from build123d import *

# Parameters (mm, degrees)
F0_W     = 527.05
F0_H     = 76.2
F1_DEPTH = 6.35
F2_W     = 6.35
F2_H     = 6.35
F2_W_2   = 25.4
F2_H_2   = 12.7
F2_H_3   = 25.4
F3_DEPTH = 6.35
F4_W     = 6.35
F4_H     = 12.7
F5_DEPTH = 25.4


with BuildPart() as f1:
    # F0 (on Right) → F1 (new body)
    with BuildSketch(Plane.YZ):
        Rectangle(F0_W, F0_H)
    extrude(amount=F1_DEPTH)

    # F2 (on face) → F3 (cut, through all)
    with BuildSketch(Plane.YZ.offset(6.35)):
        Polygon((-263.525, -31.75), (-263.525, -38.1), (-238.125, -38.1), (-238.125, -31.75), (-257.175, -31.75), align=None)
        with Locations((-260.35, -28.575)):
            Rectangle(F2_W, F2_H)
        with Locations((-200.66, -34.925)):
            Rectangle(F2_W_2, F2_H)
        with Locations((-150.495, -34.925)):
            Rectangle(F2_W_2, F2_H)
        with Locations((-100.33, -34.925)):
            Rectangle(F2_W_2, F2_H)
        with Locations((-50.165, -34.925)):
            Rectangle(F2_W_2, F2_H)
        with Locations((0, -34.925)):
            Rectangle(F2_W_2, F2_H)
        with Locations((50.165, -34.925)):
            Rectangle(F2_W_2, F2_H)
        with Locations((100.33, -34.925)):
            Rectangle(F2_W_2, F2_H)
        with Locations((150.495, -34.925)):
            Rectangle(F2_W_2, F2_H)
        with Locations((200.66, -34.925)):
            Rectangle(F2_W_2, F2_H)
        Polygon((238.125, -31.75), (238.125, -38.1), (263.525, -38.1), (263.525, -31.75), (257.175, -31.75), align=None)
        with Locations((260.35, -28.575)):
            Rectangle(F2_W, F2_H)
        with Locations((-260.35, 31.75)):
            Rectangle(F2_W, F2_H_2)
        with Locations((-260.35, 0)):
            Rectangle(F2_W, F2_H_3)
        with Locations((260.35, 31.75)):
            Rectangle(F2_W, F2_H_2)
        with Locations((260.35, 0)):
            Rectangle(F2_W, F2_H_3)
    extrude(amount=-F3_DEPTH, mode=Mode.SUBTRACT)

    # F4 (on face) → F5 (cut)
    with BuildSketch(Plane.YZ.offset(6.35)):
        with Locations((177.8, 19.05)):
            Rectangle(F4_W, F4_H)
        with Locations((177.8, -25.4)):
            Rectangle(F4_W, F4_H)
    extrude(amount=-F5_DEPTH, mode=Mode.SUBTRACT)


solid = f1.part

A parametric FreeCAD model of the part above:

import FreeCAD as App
import Part
import Sketcher

V = App.Vector
Q = App.Units.Quantity

doc = App.newDocument("Part")
body = doc.addObject("PartDesign::Body", "Body")

sketch1 = body.newObject("Sketcher::SketchObject", "Sketch")
sketch1.AttachmentSupport = (doc.getObject("YZ_Plane"), [""])
sketch1.MapMode = "FlatFace"
sketch1.addGeometry(Part.LineSegment(V(-263.525, 38.1, 0), V(-263.525, -38.1, 0)), False)
sketch1.addGeometry(Part.LineSegment(V(-263.525, -38.1, 0), V(263.525, -38.1, 0)), False)
sketch1.addGeometry(Part.LineSegment(V(263.525, -38.1, 0), V(263.525, 38.1, 0)), False)
sketch1.addGeometry(Part.LineSegment(V(263.525, 38.1, 0), V(-263.525, 38.1, 0)), False)
sketch1.addConstraint(Sketcher.Constraint("Coincident", 0, 2, 1, 1))
sketch1.addConstraint(Sketcher.Constraint("Coincident", 1, 2, 2, 1))
sketch1.addConstraint(Sketcher.Constraint("Coincident", 2, 2, 3, 1))
sketch1.addConstraint(Sketcher.Constraint("Coincident", 3, 2, 0, 1))
sketch1.addConstraint(Sketcher.Constraint("Vertical", 0))
sketch1.addConstraint(Sketcher.Constraint("Horizontal", 1))
sketch1.addConstraint(Sketcher.Constraint("Vertical", 2))
sketch1.addConstraint(Sketcher.Constraint("Horizontal", 3))
sketch1.addConstraint(Sketcher.Constraint("Symmetric", 0, 2, 2, 2, -1, 1))
sketch1.addConstraint(Sketcher.Constraint("DistanceY", 0, 2, 0, 1, Q("3 in")))
sketch1.addConstraint(Sketcher.Constraint("DistanceX", 1, 1, 1, 2, Q("20.75 in")))
pad1 = body.newObject("PartDesign::Pad", "Pad")
pad1.Profile = sketch1
pad1.Length = Q("0.25 in")

sketch2 = body.newObject("Sketcher::SketchObject", "Sketch001")
sketch2.AttachmentSupport = (doc.getObject("YZ_Plane"), [""])
sketch2.MapMode = "FlatFace"
sketch2.AttachmentOffset = App.Placement(V(0, 0, 0.25 * 25.4), App.Rotation())
sketch2.addGeometry(Part.LineSegment(V(-263.525, -38.1, 0), V(-238.125, -38.1, 0)), False)
sketch2.addGeometry(Part.LineSegment(V(-238.125, -38.1, 0), V(-238.125, -31.75, 0)), False)
sketch2.addGeometry(Part.LineSegment(V(-238.125, -31.75, 0), V(-257.175, -31.75, 0)), False)
sketch2.addGeometry(Part.LineSegment(V(-257.175, -31.75, 0), V(-257.175, -25.4, 0)), False)
sketch2.addGeometry(Part.LineSegment(V(-257.175, -25.4, 0), V(-263.525, -25.4, 0)), False)
sketch2.addGeometry(Part.LineSegment(V(-263.525, -25.4, 0), V(-263.525, -38.1, 0)), False)
sketch2.addGeometry(Part.LineSegment(V(-213.36, -31.75, 0), V(-213.36, -38.1, 0)), False)
sketch2.addGeometry(Part.LineSegment(V(-213.36, -38.1, 0), V(-187.96, -38.1, 0)), False)
sketch2.addGeometry(Part.LineSegment(V(-187.96, -38.1, 0), V(-187.96, -31.75, 0)), False)
sketch2.addGeometry(Part.LineSegment(V(-187.96, -31.75, 0), V(-213.36, -31.75, 0)), False)
sketch2.addGeometry(Part.LineSegment(V(-163.195, -31.75, 0), V(-163.195, -38.1, 0)), False)
sketch2.addGeometry(Part.LineSegment(V(-163.195, -38.1, 0), V(-137.795, -38.1, 0)), False)
sketch2.addGeometry(Part.LineSegment(V(-137.795, -38.1, 0), V(-137.795, -31.75, 0)), False)
sketch2.addGeometry(Part.LineSegment(V(-137.795, -31.75, 0), V(-163.195, -31.75, 0)), False)
sketch2.addGeometry(Part.LineSegment(V(-113.03, -31.75, 0), V(-113.03, -38.1, 0)), False)
sketch2.addGeometry(Part.LineSegment(V(-113.03, -38.1, 0), V(-87.63, -38.1, 0)), False)
sketch2.addGeometry(Part.LineSegment(V(-87.63, -38.1, 0), V(-87.63, -31.75, 0)), False)
sketch2.addGeometry(Part.LineSegment(V(-87.63, -31.75, 0), V(-113.03, -31.75, 0)), False)
sketch2.addGeometry(Part.LineSegment(V(-62.865, -31.75, 0), V(-62.865, -38.1, 0)), False)
sketch2.addGeometry(Part.LineSegment(V(-62.865, -38.1, 0), V(-37.465, -38.1, 0)), False)
sketch2.addGeometry(Part.LineSegment(V(-37.465, -38.1, 0), V(-37.465, -31.75, 0)), False)
sketch2.addGeometry(Part.LineSegment(V(-37.465, -31.75, 0), V(-62.865, -31.75, 0)), False)
sketch2.addGeometry(Part.LineSegment(V(-12.7, -31.75, 0), V(-12.7, -38.1, 0)), False)
sketch2.addGeometry(Part.LineSegment(V(-12.7, -38.1, 0), V(12.7, -38.1, 0)), False)
sketch2.addGeometry(Part.LineSegment(V(12.7, -38.1, 0), V(12.7, -31.75, 0)), False)
sketch2.addGeometry(Part.LineSegment(V(12.7, -31.75, 0), V(-12.7, -31.75, 0)), False)
sketch2.addGeometry(Part.LineSegment(V(37.465, -31.75, 0), V(37.465, -38.1, 0)), False)
sketch2.addGeometry(Part.LineSegment(V(37.465, -38.1, 0), V(62.865, -38.1, 0)), False)
sketch2.addGeometry(Part.LineSegment(V(62.865, -38.1, 0), V(62.865, -31.75, 0)), False)
sketch2.addGeometry(Part.LineSegment(V(62.865, -31.75, 0), V(37.465, -31.75, 0)), False)
sketch2.addGeometry(Part.LineSegment(V(87.63, -31.75, 0), V(87.63, -38.1, 0)), False)
sketch2.addGeometry(Part.LineSegment(V(87.63, -38.1, 0), V(113.03, -38.1, 0)), False)
sketch2.addGeometry(Part.LineSegment(V(113.03, -38.1, 0), V(113.03, -31.75, 0)), False)
sketch2.addGeometry(Part.LineSegment(V(113.03, -31.75, 0), V(87.63, -31.75, 0)), False)
sketch2.addGeometry(Part.LineSegment(V(137.795, -31.75, 0), V(137.795, -38.1, 0)), False)
sketch2.addGeometry(Part.LineSegment(V(137.795, -38.1, 0), V(163.195, -38.1, 0)), False)
sketch2.addGeometry(Part.LineSegment(V(163.195, -38.1, 0), V(163.195, -31.75, 0)), False)
sketch2.addGeometry(Part.LineSegment(V(163.195, -31.75, 0), V(137.795, -31.75, 0)), False)
sketch2.addGeometry(Part.LineSegment(V(187.96, -31.75, 0), V(187.96, -38.1, 0)), False)
sketch2.addGeometry(Part.LineSegment(V(187.96, -38.1, 0), V(213.36, -38.1, 0)), False)
sketch2.addGeometry(Part.LineSegment(V(213.36, -38.1, 0), V(213.36, -31.75, 0)), False)
sketch2.addGeometry(Part.LineSegment(V(213.36, -31.75, 0), V(187.96, -31.75, 0)), False)
sketch2.addGeometry(Part.LineSegment(V(238.125, -31.75, 0), V(238.125, -38.1, 0)), False)
sketch2.addGeometry(Part.LineSegment(V(238.125, -38.1, 0), V(263.525, -38.1, 0)), False)
sketch2.addGeometry(Part.LineSegment(V(263.525, -38.1, 0), V(263.525, -25.4, 0)), False)
sketch2.addGeometry(Part.LineSegment(V(263.525, -25.4, 0), V(257.175, -25.4, 0)), False)
sketch2.addGeometry(Part.LineSegment(V(257.175, -25.4, 0), V(257.175, -31.75, 0)), False)
sketch2.addGeometry(Part.LineSegment(V(257.175, -31.75, 0), V(238.125, -31.75, 0)), False)
sketch2.addGeometry(Part.LineSegment(V(-263.525, 38.1, 0), V(-263.525, 25.4, 0)), False)
sketch2.addGeometry(Part.LineSegment(V(-263.525, 25.4, 0), V(-257.175, 25.4, 0)), False)
sketch2.addGeometry(Part.LineSegment(V(-257.175, 25.4, 0), V(-257.175, 38.1, 0)), False)
sketch2.addGeometry(Part.LineSegment(V(-257.175, 38.1, 0), V(-263.525, 38.1, 0)), False)
sketch2.addGeometry(Part.LineSegment(V(-263.525, 12.7, 0), V(-263.525, -12.7, 0)), False)
sketch2.addGeometry(Part.LineSegment(V(-263.525, -12.7, 0), V(-257.175, -12.7, 0)), False)
sketch2.addGeometry(Part.LineSegment(V(-257.175, -12.7, 0), V(-257.175, 12.7, 0)), False)
sketch2.addGeometry(Part.LineSegment(V(-257.175, 12.7, 0), V(-263.525, 12.7, 0)), False)
sketch2.addGeometry(Part.LineSegment(V(257.175, 38.1, 0), V(257.175, 25.4, 0)), False)
sketch2.addGeometry(Part.LineSegment(V(257.175, 25.4, 0), V(263.525, 25.4, 0)), False)
sketch2.addGeometry(Part.LineSegment(V(263.525, 25.4, 0), V(263.525, 38.1, 0)), False)
sketch2.addGeometry(Part.LineSegment(V(263.525, 38.1, 0), V(257.175, 38.1, 0)), False)
sketch2.addGeometry(Part.LineSegment(V(257.175, 12.7, 0), V(257.175, -12.7, 0)), False)
sketch2.addGeometry(Part.LineSegment(V(257.175, -12.7, 0), V(263.525, -12.7, 0)), False)
sketch2.addGeometry(Part.LineSegment(V(263.525, -12.7, 0), V(263.525, 12.7, 0)), False)
sketch2.addGeometry(Part.LineSegment(V(263.525, 12.7, 0), V(257.175, 12.7, 0)), False)
sketch2.addConstraint(Sketcher.Constraint("Coincident", 0, 2, 1, 1))
sketch2.addConstraint(Sketcher.Constraint("Coincident", 1, 2, 2, 1))
sketch2.addConstraint(Sketcher.Constraint("Coincident", 2, 2, 3, 1))
sketch2.addConstraint(Sketcher.Constraint("Coincident", 3, 2, 4, 1))
sketch2.addConstraint(Sketcher.Constraint("Coincident", 4, 2, 5, 1))
sketch2.addConstraint(Sketcher.Constraint("Coincident", 5, 2, 0, 1))
sketch2.addConstraint(Sketcher.Constraint("Coincident", 6, 2, 7, 1))
sketch2.addConstraint(Sketcher.Constraint("Coincident", 7, 2, 8, 1))
sketch2.addConstraint(Sketcher.Constraint("Coincident", 8, 2, 9, 1))
sketch2.addConstraint(Sketcher.Constraint("Coincident", 9, 2, 6, 1))
sketch2.addConstraint(Sketcher.Constraint("Coincident", 10, 2, 11, 1))
sketch2.addConstraint(Sketcher.Constraint("Coincident", 11, 2, 12, 1))
sketch2.addConstraint(Sketcher.Constraint("Coincident", 12, 2, 13, 1))
sketch2.addConstraint(Sketcher.Constraint("Coincident", 13, 2, 10, 1))
sketch2.addConstraint(Sketcher.Constraint("Coincident", 14, 2, 15, 1))
sketch2.addConstraint(Sketcher.Constraint("Coincident", 15, 2, 16, 1))
sketch2.addConstraint(Sketcher.Constraint("Coincident", 16, 2, 17, 1))
sketch2.addConstraint(Sketcher.Constraint("Coincident", 17, 2, 14, 1))
sketch2.addConstraint(Sketcher.Constraint("Coincident", 18, 2, 19, 1))
sketch2.addConstraint(Sketcher.Constraint("Coincident", 19, 2, 20, 1))
sketch2.addConstraint(Sketcher.Constraint("Coincident", 20, 2, 21, 1))
sketch2.addConstraint(Sketcher.Constraint("Coincident", 21, 2, 18, 1))
sketch2.addConstraint(Sketcher.Constraint("Coincident", 22, 2, 23, 1))
sketch2.addConstraint(Sketcher.Constraint("Coincident", 23, 2, 24, 1))
sketch2.addConstraint(Sketcher.Constraint("Coincident", 24, 2, 25, 1))
sketch2.addConstraint(Sketcher.Constraint("Coincident", 25, 2, 22, 1))
sketch2.addConstraint(Sketcher.Constraint("Coincident", 26, 2, 27, 1))
sketch2.addConstraint(Sketcher.Constraint("Coincident", 27, 2, 28, 1))
sketch2.addConstraint(Sketcher.Constraint("Coincident", 28, 2, 29, 1))
sketch2.addConstraint(Sketcher.Constraint("Coincident", 29, 2, 26, 1))
sketch2.addConstraint(Sketcher.Constraint("Coincident", 30, 2, 31, 1))
sketch2.addConstraint(Sketcher.Constraint("Coincident", 31, 2, 32, 1))
sketch2.addConstraint(Sketcher.Constraint("Coincident", 32, 2, 33, 1))
sketch2.addConstraint(Sketcher.Constraint("Coincident", 33, 2, 30, 1))
sketch2.addConstraint(Sketcher.Constraint("Coincident", 34, 2, 35, 1))
sketch2.addConstraint(Sketcher.Constraint("Coincident", 35, 2, 36, 1))
sketch2.addConstraint(Sketcher.Constraint("Coincident", 36, 2, 37, 1))
sketch2.addConstraint(Sketcher.Constraint("Coincident", 37, 2, 34, 1))
sketch2.addConstraint(Sketcher.Constraint("Coincident", 38, 2, 39, 1))
sketch2.addConstraint(Sketcher.Constraint("Coincident", 39, 2, 40, 1))
sketch2.addConstraint(Sketcher.Constraint("Coincident", 40, 2, 41, 1))
sketch2.addConstraint(Sketcher.Constraint("Coincident", 41, 2, 38, 1))
sketch2.addConstraint(Sketcher.Constraint("Coincident", 42, 2, 43, 1))
sketch2.addConstraint(Sketcher.Constraint("Coincident", 43, 2, 44, 1))
sketch2.addConstraint(Sketcher.Constraint("Coincident", 44, 2, 45, 1))
sketch2.addConstraint(Sketcher.Constraint("Coincident", 45, 2, 46, 1))
sketch2.addConstraint(Sketcher.Constraint("Coincident", 46, 2, 47, 1))
sketch2.addConstraint(Sketcher.Constraint("Coincident", 47, 2, 42, 1))
sketch2.addConstraint(Sketcher.Constraint("Coincident", 48, 2, 49, 1))
sketch2.addConstraint(Sketcher.Constraint("Coincident", 49, 2, 50, 1))
sketch2.addConstraint(Sketcher.Constraint("Coincident", 50, 2, 51, 1))
sketch2.addConstraint(Sketcher.Constraint("Coincident", 51, 2, 48, 1))
sketch2.addConstraint(Sketcher.Constraint("Coincident", 52, 2, 53, 1))
sketch2.addConstraint(Sketcher.Constraint("Coincident", 53, 2, 54, 1))
sketch2.addConstraint(Sketcher.Constraint("Coincident", 54, 2, 55, 1))
sketch2.addConstraint(Sketcher.Constraint("Coincident", 55, 2, 52, 1))
sketch2.addConstraint(Sketcher.Constraint("Coincident", 56, 2, 57, 1))
sketch2.addConstraint(Sketcher.Constraint("Coincident", 57, 2, 58, 1))
sketch2.addConstraint(Sketcher.Constraint("Coincident", 58, 2, 59, 1))
sketch2.addConstraint(Sketcher.Constraint("Coincident", 59, 2, 56, 1))
sketch2.addConstraint(Sketcher.Constraint("Coincident", 60, 2, 61, 1))
sketch2.addConstraint(Sketcher.Constraint("Coincident", 61, 2, 62, 1))
sketch2.addConstraint(Sketcher.Constraint("Coincident", 62, 2, 63, 1))
sketch2.addConstraint(Sketcher.Constraint("Coincident", 63, 2, 60, 1))
sketch2.addConstraint(Sketcher.Constraint("Horizontal", 0))
sketch2.addConstraint(Sketcher.Constraint("Vertical", 1))
sketch2.addConstraint(Sketcher.Constraint("Horizontal", 2))
sketch2.addConstraint(Sketcher.Constraint("Vertical", 3))
sketch2.addConstraint(Sketcher.Constraint("Horizontal", 4))
sketch2.addConstraint(Sketcher.Constraint("Vertical", 5))
sketch2.addConstraint(Sketcher.Constraint("Vertical", 6))
sketch2.addConstraint(Sketcher.Constraint("Horizontal", 7))
sketch2.addConstraint(Sketcher.Constraint("Vertical", 8))
sketch2.addConstraint(Sketcher.Constraint("Horizontal", 9))
sketch2.addConstraint(Sketcher.Constraint("Vertical", 10))
sketch2.addConstraint(Sketcher.Constraint("Horizontal", 11))
sketch2.addConstraint(Sketcher.Constraint("Vertical", 12))
sketch2.addConstraint(Sketcher.Constraint("Horizontal", 13))
sketch2.addConstraint(Sketcher.Constraint("Vertical", 14))
sketch2.addConstraint(Sketcher.Constraint("Horizontal", 15))
sketch2.addConstraint(Sketcher.Constraint("Vertical", 16))
sketch2.addConstraint(Sketcher.Constraint("Horizontal", 17))
sketch2.addConstraint(Sketcher.Constraint("Vertical", 18))
sketch2.addConstraint(Sketcher.Constraint("Horizontal", 19))
sketch2.addConstraint(Sketcher.Constraint("Vertical", 20))
sketch2.addConstraint(Sketcher.Constraint("Horizontal", 21))
sketch2.addConstraint(Sketcher.Constraint("Vertical", 22))
sketch2.addConstraint(Sketcher.Constraint("Horizontal", 23))
sketch2.addConstraint(Sketcher.Constraint("Vertical", 24))
sketch2.addConstraint(Sketcher.Constraint("Horizontal", 25))
sketch2.addConstraint(Sketcher.Constraint("Vertical", 26))
sketch2.addConstraint(Sketcher.Constraint("Horizontal", 27))
sketch2.addConstraint(Sketcher.Constraint("Vertical", 28))
sketch2.addConstraint(Sketcher.Constraint("Horizontal", 29))
sketch2.addConstraint(Sketcher.Constraint("Vertical", 30))
sketch2.addConstraint(Sketcher.Constraint("Horizontal", 31))
sketch2.addConstraint(Sketcher.Constraint("Vertical", 32))
sketch2.addConstraint(Sketcher.Constraint("Horizontal", 33))
sketch2.addConstraint(Sketcher.Constraint("Vertical", 34))
sketch2.addConstraint(Sketcher.Constraint("Horizontal", 35))
sketch2.addConstraint(Sketcher.Constraint("Vertical", 36))
sketch2.addConstraint(Sketcher.Constraint("Horizontal", 37))
sketch2.addConstraint(Sketcher.Constraint("Vertical", 38))
sketch2.addConstraint(Sketcher.Constraint("Horizontal", 39))
sketch2.addConstraint(Sketcher.Constraint("Vertical", 40))
sketch2.addConstraint(Sketcher.Constraint("Horizontal", 41))
sketch2.addConstraint(Sketcher.Constraint("Vertical", 42))
sketch2.addConstraint(Sketcher.Constraint("Horizontal", 43))
sketch2.addConstraint(Sketcher.Constraint("Vertical", 44))
sketch2.addConstraint(Sketcher.Constraint("Horizontal", 45))
sketch2.addConstraint(Sketcher.Constraint("Vertical", 46))
sketch2.addConstraint(Sketcher.Constraint("Horizontal", 47))
sketch2.addConstraint(Sketcher.Constraint("Vertical", 48))
sketch2.addConstraint(Sketcher.Constraint("Horizontal", 49))
sketch2.addConstraint(Sketcher.Constraint("Vertical", 50))
sketch2.addConstraint(Sketcher.Constraint("Horizontal", 51))
sketch2.addConstraint(Sketcher.Constraint("Vertical", 52))
sketch2.addConstraint(Sketcher.Constraint("Horizontal", 53))
sketch2.addConstraint(Sketcher.Constraint("Vertical", 54))
sketch2.addConstraint(Sketcher.Constraint("Horizontal", 55))
sketch2.addConstraint(Sketcher.Constraint("Vertical", 56))
sketch2.addConstraint(Sketcher.Constraint("Horizontal", 57))
sketch2.addConstraint(Sketcher.Constraint("Vertical", 58))
sketch2.addConstraint(Sketcher.Constraint("Horizontal", 59))
sketch2.addConstraint(Sketcher.Constraint("Vertical", 60))
sketch2.addConstraint(Sketcher.Constraint("Horizontal", 61))
sketch2.addConstraint(Sketcher.Constraint("Vertical", 62))
sketch2.addConstraint(Sketcher.Constraint("Horizontal", 63))
sketch2.addConstraint(Sketcher.Constraint("Symmetric", 44, 2, 48, 2, -1, 1))
sketch2.addConstraint(Sketcher.Constraint("Symmetric", 3, 2, 56, 2, -1, 1))
sketch2.addConstraint(Sketcher.Constraint("Symmetric", 5, 2, 58, 2, -1, 1))
sketch2.addConstraint(Sketcher.Constraint("Symmetric", 54, 2, 60, 2, -1, 1))
sketch2.addConstraint(Sketcher.Constraint("Symmetric", 52, 2, 62, 2, -1, 1))
sketch2.addConstraint(Sketcher.Constraint("Symmetric", 19, 2, 26, 2, -2))
sketch2.addConstraint(Sketcher.Constraint("Symmetric", 21, 2, 28, 2, -2))
sketch2.addConstraint(Sketcher.Constraint("Symmetric", 15, 2, 30, 2, -2))
sketch2.addConstraint(Sketcher.Constraint("Symmetric", 17, 2, 32, 2, -2))
sketch2.addConstraint(Sketcher.Constraint("Symmetric", 11, 2, 34, 2, -2))
sketch2.addConstraint(Sketcher.Constraint("Symmetric", 13, 2, 36, 2, -2))
sketch2.addConstraint(Sketcher.Constraint("Symmetric", 7, 2, 38, 2, -2))
sketch2.addConstraint(Sketcher.Constraint("Symmetric", 9, 2, 40, 2, -2))
sketch2.addConstraint(Sketcher.Constraint("Symmetric", 0, 2, 42, 2, -2))
sketch2.addConstraint(Sketcher.Constraint("Symmetric", 4, 2, 44, 2, -2))
sketch2.addConstraint(Sketcher.Constraint("Symmetric", 2, 2, 46, 2, -2))
sketch2.addConstraint(Sketcher.Constraint("Symmetric", 50, 2, 59, 2, -2))
sketch2.addConstraint(Sketcher.Constraint("Horizontal", 5, 2, 6, 2))
sketch2.addConstraint(Sketcher.Constraint("Horizontal", 2, 2, 8, 2))
sketch2.addConstraint(Sketcher.Constraint("Horizontal", 7, 2, 10, 2))
sketch2.addConstraint(Sketcher.Constraint("Horizontal", 9, 2, 12, 2))
sketch2.addConstraint(Sketcher.Constraint("Horizontal", 11, 2, 14, 2))
sketch2.addConstraint(Sketcher.Constraint("Horizontal", 13, 2, 16, 2))
sketch2.addConstraint(Sketcher.Constraint("Horizontal", 15, 2, 18, 2))
sketch2.addConstraint(Sketcher.Constraint("Horizontal", 17, 2, 20, 2))
sketch2.addConstraint(Sketcher.Constraint("Horizontal", 19, 2, 22, 2))
sketch2.addConstraint(Sketcher.Constraint("Horizontal", 21, 2, 24, 2))
sketch2.addConstraint(Sketcher.Constraint("Horizontal", 53, 2, 60, 2))
sketch2.addConstraint(Sketcher.Constraint("Vertical", 51, 2, 52, 2))
sketch2.addConstraint(Sketcher.Constraint("Vertical", 50, 2, 53, 2))
sketch2.addConstraint(Sketcher.Constraint("Equal", 0, 7))
sketch2.addConstraint(Sketcher.Constraint("Equal", 9, 11))
sketch2.addConstraint(Sketcher.Constraint("Equal", 13, 15))
sketch2.addConstraint(Sketcher.Constraint("Equal", 17, 19))
sketch2.addConstraint(Sketcher.Constraint("Equal", 21, 23))
sketch2.addConstraint(Sketcher.Constraint("Equal", 63, 1))
sketch2.addConstraint(Sketcher.Constraint("Equal", 1, 3))
sketch2.addConstraint(Sketcher.Constraint("Equal", 43, 52))
sketch2.addConstraint(Sketcher.Constraint("DistanceX", 0, 1, 0, 2, Q("1 in")))
sketch2.addConstraint(Sketcher.Constraint("DistanceY", 5, 2, 5, 1, Q("0.5 in")))
sketch2.addConstraint(Sketcher.Constraint("DistanceY", 3, 2, -1, 1, Q("1 in")))
sketch2.addConstraint(Sketcher.Constraint("DistanceX", 6, 2, -1, 1, Q("8.4 in")))
sketch2.addConstraint(Sketcher.Constraint("DistanceX", 22, 2, -1, 1, Q("0.5 in")))
sketch2.addConstraint(Sketcher.Constraint("DistanceX", 14, 2, -1, 1, Q("4.45 in")))
sketch2.addConstraint(Sketcher.Constraint("DistanceX", 0, 2, -1, 1, Q("9.375 in")))
sketch2.addConstraint(Sketcher.Constraint("DistanceX", 10, 2, -1, 1, Q("6.425 in")))
sketch2.addConstraint(Sketcher.Constraint("DistanceX", 18, 2, -1, 1, Q("2.475 in")))
pocket1 = body.newObject("PartDesign::Pocket", "Pocket")
pocket1.Profile = sketch2
pocket1.Type = "ThroughAll"

sketch3 = body.newObject("Sketcher::SketchObject", "Sketch002")
sketch3.AttachmentSupport = (doc.getObject("YZ_Plane"), [""])
sketch3.MapMode = "FlatFace"
sketch3.AttachmentOffset = App.Placement(V(0, 0, 0.25 * 25.4), App.Rotation())
sketch3.addGeometry(Part.LineSegment(V(174.625, 25.4, 0), V(174.625, 12.7, 0)), False)
sketch3.addGeometry(Part.LineSegment(V(174.625, 12.7, 0), V(180.975, 12.7, 0)), False)
sketch3.addGeometry(Part.LineSegment(V(180.975, 12.7, 0), V(180.975, 25.4, 0)), False)
sketch3.addGeometry(Part.LineSegment(V(180.975, 25.4, 0), V(174.625, 25.4, 0)), False)
sketch3.addGeometry(Part.LineSegment(V(174.625, -19.05, 0), V(174.625, -31.75, 0)), False)
sketch3.addGeometry(Part.LineSegment(V(174.625, -31.75, 0), V(180.975, -31.75, 0)), False)
sketch3.addGeometry(Part.LineSegment(V(180.975, -31.75, 0), V(180.975, -19.05, 0)), False)
sketch3.addGeometry(Part.LineSegment(V(180.975, -19.05, 0), V(174.625, -19.05, 0)), False)
sketch3.addConstraint(Sketcher.Constraint("Coincident", 0, 2, 1, 1))
sketch3.addConstraint(Sketcher.Constraint("Coincident", 1, 2, 2, 1))
sketch3.addConstraint(Sketcher.Constraint("Coincident", 2, 2, 3, 1))
sketch3.addConstraint(Sketcher.Constraint("Coincident", 3, 2, 0, 1))
sketch3.addConstraint(Sketcher.Constraint("Coincident", 4, 2, 5, 1))
sketch3.addConstraint(Sketcher.Constraint("Coincident", 5, 2, 6, 1))
sketch3.addConstraint(Sketcher.Constraint("Coincident", 6, 2, 7, 1))
sketch3.addConstraint(Sketcher.Constraint("Coincident", 7, 2, 4, 1))
sketch3.addConstraint(Sketcher.Constraint("Vertical", 0))
sketch3.addConstraint(Sketcher.Constraint("Horizontal", 1))
sketch3.addConstraint(Sketcher.Constraint("Vertical", 2))
sketch3.addConstraint(Sketcher.Constraint("Horizontal", 3))
sketch3.addConstraint(Sketcher.Constraint("Vertical", 4))
sketch3.addConstraint(Sketcher.Constraint("Horizontal", 5))
sketch3.addConstraint(Sketcher.Constraint("Vertical", 6))
sketch3.addConstraint(Sketcher.Constraint("Horizontal", 7))
sketch3.addConstraint(Sketcher.Constraint("Vertical", 3, 2, 4, 2))
sketch3.addConstraint(Sketcher.Constraint("Vertical", 2, 2, 5, 2))
sketch3.addConstraint(Sketcher.Constraint("Equal", 2, 4))
sketch3.addConstraint(Sketcher.Constraint("DistanceY", 0, 2, 0, 1, Q("0.5 in")))
sketch3.addConstraint(Sketcher.Constraint("DistanceY", -1, 1, 2, 2, Q("1 in")))
sketch3.addConstraint(Sketcher.Constraint("DistanceX", 1, 1, 1, 2, Q("0.25 in")))
sketch3.addConstraint(Sketcher.Constraint("DistanceY", 4, 2, -1, 1, Q("1.25 in")))
sketch3.addConstraint(Sketcher.Constraint("DistanceX", -1, 1, 0, 2, Q("6.875 in")))
pocket2 = body.newObject("PartDesign::Pocket", "Pocket001")
pocket2.Profile = sketch3
pocket2.Length = Q("1 in")

doc.recompute()
